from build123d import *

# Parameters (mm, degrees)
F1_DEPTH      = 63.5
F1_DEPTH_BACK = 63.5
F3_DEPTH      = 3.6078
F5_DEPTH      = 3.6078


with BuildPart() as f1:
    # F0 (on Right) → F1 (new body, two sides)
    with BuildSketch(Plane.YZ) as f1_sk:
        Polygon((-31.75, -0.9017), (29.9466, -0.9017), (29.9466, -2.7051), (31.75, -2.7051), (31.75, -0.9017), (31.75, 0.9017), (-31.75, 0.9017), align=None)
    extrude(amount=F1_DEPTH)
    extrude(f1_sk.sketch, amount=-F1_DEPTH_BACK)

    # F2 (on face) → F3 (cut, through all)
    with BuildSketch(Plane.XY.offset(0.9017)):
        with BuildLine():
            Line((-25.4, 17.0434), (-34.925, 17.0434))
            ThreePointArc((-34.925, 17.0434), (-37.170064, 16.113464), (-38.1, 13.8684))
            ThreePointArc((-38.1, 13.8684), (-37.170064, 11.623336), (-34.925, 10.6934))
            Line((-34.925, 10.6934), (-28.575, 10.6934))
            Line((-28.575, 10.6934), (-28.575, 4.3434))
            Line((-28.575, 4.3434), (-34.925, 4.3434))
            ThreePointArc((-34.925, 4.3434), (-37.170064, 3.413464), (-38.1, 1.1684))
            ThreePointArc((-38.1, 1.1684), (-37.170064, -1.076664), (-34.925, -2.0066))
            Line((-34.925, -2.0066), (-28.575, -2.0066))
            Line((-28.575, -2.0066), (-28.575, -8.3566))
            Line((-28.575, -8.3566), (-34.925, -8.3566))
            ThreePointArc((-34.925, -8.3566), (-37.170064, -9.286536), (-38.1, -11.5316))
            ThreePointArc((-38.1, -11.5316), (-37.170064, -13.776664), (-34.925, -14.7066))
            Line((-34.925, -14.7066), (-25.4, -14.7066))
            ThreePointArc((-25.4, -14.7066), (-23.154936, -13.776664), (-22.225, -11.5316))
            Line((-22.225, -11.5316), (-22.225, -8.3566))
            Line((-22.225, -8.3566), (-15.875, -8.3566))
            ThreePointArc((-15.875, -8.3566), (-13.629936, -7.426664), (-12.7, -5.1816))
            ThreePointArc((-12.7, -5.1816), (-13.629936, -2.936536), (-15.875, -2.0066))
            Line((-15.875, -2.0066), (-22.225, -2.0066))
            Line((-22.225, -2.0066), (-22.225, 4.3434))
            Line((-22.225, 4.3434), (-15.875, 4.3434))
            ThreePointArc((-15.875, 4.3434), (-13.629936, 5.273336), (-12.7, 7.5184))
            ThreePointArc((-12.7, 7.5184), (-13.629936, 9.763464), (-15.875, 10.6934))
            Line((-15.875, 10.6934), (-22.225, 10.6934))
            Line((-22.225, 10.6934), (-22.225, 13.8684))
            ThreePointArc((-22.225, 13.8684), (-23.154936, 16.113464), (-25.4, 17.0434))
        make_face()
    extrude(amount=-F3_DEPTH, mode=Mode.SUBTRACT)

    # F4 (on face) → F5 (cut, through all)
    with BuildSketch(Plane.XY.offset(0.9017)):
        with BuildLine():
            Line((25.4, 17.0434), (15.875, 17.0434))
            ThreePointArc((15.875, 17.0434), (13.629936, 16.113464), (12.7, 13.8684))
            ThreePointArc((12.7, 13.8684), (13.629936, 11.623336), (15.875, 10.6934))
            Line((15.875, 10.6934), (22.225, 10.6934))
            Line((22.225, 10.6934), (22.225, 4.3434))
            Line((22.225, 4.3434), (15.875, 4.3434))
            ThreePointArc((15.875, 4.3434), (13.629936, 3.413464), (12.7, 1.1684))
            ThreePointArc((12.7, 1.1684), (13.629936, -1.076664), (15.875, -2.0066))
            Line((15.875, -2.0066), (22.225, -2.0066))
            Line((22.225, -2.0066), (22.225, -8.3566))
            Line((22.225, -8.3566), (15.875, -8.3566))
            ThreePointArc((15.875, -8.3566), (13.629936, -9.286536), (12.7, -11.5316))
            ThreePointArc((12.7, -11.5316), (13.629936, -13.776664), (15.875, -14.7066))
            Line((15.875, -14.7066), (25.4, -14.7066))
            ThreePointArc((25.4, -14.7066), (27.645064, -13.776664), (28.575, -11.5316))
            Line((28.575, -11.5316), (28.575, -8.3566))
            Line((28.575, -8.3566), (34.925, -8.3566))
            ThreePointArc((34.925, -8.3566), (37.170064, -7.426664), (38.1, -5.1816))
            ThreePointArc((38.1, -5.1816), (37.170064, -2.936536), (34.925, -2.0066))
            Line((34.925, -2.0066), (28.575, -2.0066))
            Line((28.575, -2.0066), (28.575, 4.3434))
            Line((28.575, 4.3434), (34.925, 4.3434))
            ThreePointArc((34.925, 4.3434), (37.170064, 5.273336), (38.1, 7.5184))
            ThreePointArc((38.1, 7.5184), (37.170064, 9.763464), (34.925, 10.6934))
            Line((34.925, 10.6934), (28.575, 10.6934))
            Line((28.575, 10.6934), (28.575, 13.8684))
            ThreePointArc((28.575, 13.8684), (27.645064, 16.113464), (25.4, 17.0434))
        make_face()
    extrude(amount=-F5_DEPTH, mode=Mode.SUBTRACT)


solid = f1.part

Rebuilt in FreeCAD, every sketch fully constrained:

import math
import FreeCAD as App
import Part
import Sketcher
Q = App.Units.Quantity

doc = App.newDocument("Part")
body = doc.addObject("PartDesign::Body", "Body")

sketch1 = doc.addObject("Sketcher::SketchObject", "Sketch")
body.addObject(sketch1)
sketch1.AttachmentSupport = (doc.YZ_Plane, [""])
sketch1.MapMode = "FlatFace"
sketch1.addGeometry([
    Part.LineSegment(App.Vector(-31.8, -0.9, 0), App.Vector(29.9, -0.9, 0)),
    Part.LineSegment(App.Vector(29.9, -0.9, 0), App.Vector(29.9, -2.7, 0)),
    Part.LineSegment(App.Vector(29.9, -2.7, 0), App.Vector(31.8, -2.7, 0)),
    Part.LineSegment(App.Vector(31.8, -2.7, 0), App.Vector(31.8, 0.9, 0)),
    Part.LineSegment(App.Vector(31.8, 0.9, 0), App.Vector(-31.8, 0.9, 0)),
    Part.LineSegment(App.Vector(-31.8, 0.9, 0), App.Vector(-31.8, -0.9, 0)),
], False)
sketch1.addConstraint([
    Sketcher.Constraint("Coincident", 0, 2, 1, 1),
    Sketcher.Constraint("Coincident", 1, 2, 2, 1),
    Sketcher.Constraint("Coincident", 2, 2, 3, 1),
    Sketcher.Constraint("Coincident", 3, 2, 4, 1),
    Sketcher.Constraint("Coincident", 4, 2, 5, 1),
    Sketcher.Constraint("Coincident", 5, 2, 0, 1),
    Sketcher.Constraint("Horizontal", 0),
    Sketcher.Constraint("Vertical", 1),
    Sketcher.Constraint("Horizontal", 2),
    Sketcher.Constraint("Vertical", 3),
    Sketcher.Constraint("Horizontal", 4),
    Sketcher.Constraint("Vertical", 5),
    Sketcher.Constraint("Symmetric", 3, 2, 5, 2, -1, 1),
    Sketcher.Constraint("Equal", 2, 1),
    Sketcher.Constraint("Equal", 1, 5),
    Sketcher.Constraint("DistanceX", 4, 2, 4, 1, Q("2.5 in")),
    Sketcher.Constraint("DistanceX", 0, 1, 0, 2, Q("2.429 in")),
])
pad1 = doc.addObject("PartDesign::Pad", "Pad")
body.addObject(pad1)
pad1.Profile = sketch1
pad1.Type = "TwoLengths"
pad1.Length = Q("2.5 in")
pad1.Length2 = Q("2.5 in")

sketch2 = doc.addObject("Sketcher::SketchObject", "Sketch001")
body.addObject(sketch2)
sketch2.AttachmentSupport = (doc.XY_Plane, [""])
sketch2.MapMode = "FlatFace"
sketch2.AttachmentOffset = App.Placement(App.Vector(0, 0, 0.0355 * 25.4), App.Rotation())
sketch2.addGeometry([
    Part.LineSegment(App.Vector(-25.4, 17, 0), App.Vector(-34.9, 17, 0)),
    Part.ArcOfCircle(Part.Circle(App.Vector(-34.9, 13.9, 0), App.Vector(0, 0, 1), 3.2), math.radians(90), math.radians(180)),
    Part.ArcOfCircle(Part.Circle(App.Vector(-34.9, 13.9, 0), App.Vector(0, 0, 1), 3.2), math.radians(-180), math.radians(-90)),
    Part.LineSegment(App.Vector(-34.9, 10.7, 0), App.Vector(-28.6, 10.7, 0)),
    Part.LineSegment(App.Vector(-28.6, 10.7, 0), App.Vector(-28.6, 4.3, 0)),
    Part.LineSegment(App.Vector(-28.6, 4.3, 0), App.Vector(-34.9, 4.3, 0)),
    Part.ArcOfCircle(Part.Circle(App.Vector(-34.9, 1.2, 0), App.Vector(0, 0, 1), 3.2), math.radians(90), math.radians(180)),
    Part.ArcOfCircle(Part.Circle(App.Vector(-34.9, 1.2, 0), App.Vector(0, 0, 1), 3.2), math.radians(-180), math.radians(-90)),
    Part.LineSegment(App.Vector(-34.9, -2, 0), App.Vector(-28.6, -2, 0)),
    Part.LineSegment(App.Vector(-28.6, -2, 0), App.Vector(-28.6, -8.4, 0)),
    Part.LineSegment(App.Vector(-28.6, -8.4, 0), App.Vector(-34.9, -8.4, 0)),
    Part.ArcOfCircle(Part.Circle(App.Vector(-34.9, -11.5, 0), App.Vector(0, 0, 1), 3.2), math.radians(90), math.radians(180)),
    Part.ArcOfCircle(Part.Circle(App.Vector(-34.9, -11.5, 0), App.Vector(0, 0, 1), 3.2), math.radians(-180), math.radians(-90)),
    Part.LineSegment(App.Vector(-34.9, -14.7, 0), App.Vector(-25.4, -14.7, 0)),
    Part.ArcOfCircle(Part.Circle(App.Vector(-25.4, -11.5, 0), App.Vector(0, 0, 1), 3.2), math.radians(-90), math.radians(0)),
    Part.LineSegment(App.Vector(-22.2, -11.5, 0), App.Vector(-22.2, -8.4, 0)),
    Part.LineSegment(App.Vector(-22.2, -8.4, 0), App.Vector(-15.9, -8.4, 0)),
    Part.ArcOfCircle(Part.Circle(App.Vector(-15.9, -5.2, 0), App.Vector(0, 0, 1), 3.2), math.radians(-90), math.radians(0)),
    Part.ArcOfCircle(Part.Circle(App.Vector(-15.9, -5.2, 0), App.Vector(0, 0, 1), 3.2), math.radians(0), math.radians(90)),
    Part.LineSegment(App.Vector(-15.9, -2, 0), App.Vector(-22.2, -2, 0)),
    Part.LineSegment(App.Vector(-22.2, -2, 0), App.Vector(-22.2, 4.3, 0)),
    Part.LineSegment(App.Vector(-22.2, 4.3, 0), App.Vector(-15.9, 4.3, 0)),
    Part.ArcOfCircle(Part.Circle(App.Vector(-15.9, 7.5, 0), App.Vector(0, 0, 1), 3.2), math.radians(-90), math.radians(0)),
    Part.ArcOfCircle(Part.Circle(App.Vector(-15.9, 7.5, 0), App.Vector(0, 0, 1), 3.2), math.radians(0), math.radians(90)),
    Part.LineSegment(App.Vector(-15.9, 10.7, 0), App.Vector(-22.2, 10.7, 0)),
    Part.LineSegment(App.Vector(-22.2, 10.7, 0), App.Vector(-22.2, 13.9, 0)),
    Part.ArcOfCircle(Part.Circle(App.Vector(-25.4, 13.9, 0), App.Vector(0, 0, 1), 3.2), math.radians(0), math.radians(90)),
], False)
sketch2.addConstraint([
    Sketcher.Constraint("Tangent", 0, 2, 1, 1),
    Sketcher.Constraint("Tangent", 1, 2, 2, 1),
    Sketcher.Constraint("Tangent", 2, 2, 3, 1),
    Sketcher.Constraint("Coincident", 3, 2, 4, 1),
    Sketcher.Constraint("Coincident", 4, 2, 5, 1),
    Sketcher.Constraint("Tangent", 5, 2, 6, 1),
    Sketcher.Constraint("Tangent", 6, 2, 7, 1),
    Sketcher.Constraint("Tangent", 7, 2, 8, 1),
    Sketcher.Constraint("Coincident", 8, 2, 9, 1),
    Sketcher.Constraint("Coincident", 9, 2, 10, 1),
    Sketcher.Constraint("Tangent", 10, 2, 11, 1),
    Sketcher.Constraint("Tangent", 11, 2, 12, 1),
    Sketcher.Constraint("Tangent", 12, 2, 13, 1),
    Sketcher.Constraint("Tangent", 13, 2, 14, 1),
    Sketcher.Constraint("Tangent", 14, 2, 15, 1),
    Sketcher.Constraint("Coincident", 15, 2, 16, 1),
    Sketcher.Constraint("Tangent", 16, 2, 17, 1),
    Sketcher.Constraint("Tangent", 17, 2, 18, 1),
    Sketcher.Constraint("Tangent", 18, 2, 19, 1),
    Sketcher.Constraint("Coincident", 19, 2, 20, 1),
    Sketcher.Constraint("Coincident", 20, 2, 21, 1),
    Sketcher.Constraint("Tangent", 21, 2, 22, 1),
    Sketcher.Constraint("Tangent", 22, 2, 23, 1),
    Sketcher.Constraint("Tangent", 23, 2, 24, 1),
    Sketcher.Constraint("Coincident", 24, 2, 25, 1),
    Sketcher.Constraint("Tangent", 25, 2, 26, 1),
    Sketcher.Constraint("Tangent", 26, 2, 0, 1),
    Sketcher.Constraint("Horizontal", 0),
    Sketcher.Constraint("Horizontal", 3),
    Sketcher.Constraint("Vertical", 4),
    Sketcher.Constraint("Horizontal", 5),
    Sketcher.Constraint("Horizontal", 8),
    Sketcher.Constraint("Vertical", 9),
    Sketcher.Constraint("Horizontal", 10),
    Sketcher.Constraint("Horizontal", 13),
    Sketcher.Constraint("Vertical", 15),
    Sketcher.Constraint("Horizontal", 16),
    Sketcher.Constraint("Horizontal", 19),
    Sketcher.Constraint("Vertical", 20),
    Sketcher.Constraint("Horizontal", 21),
    Sketcher.Constraint("Horizontal", 24),
    Sketcher.Constraint("Vertical", 25),
    Sketcher.Constraint("Equal", 1, 2),
    Sketcher.Constraint("Equal", 2, 6),
    Sketcher.Constraint("Equal", 6, 7),
    Sketcher.Constraint("Equal", 7, 11),
    Sketcher.Constraint("Equal", 11, 12),
    Sketcher.Constraint("Equal", 12, 14),
    Sketcher.Constraint("Equal", 14, 17),
    Sketcher.Constraint("Equal", 17, 18),
    Sketcher.Constraint("Equal", 18, 22),
    Sketcher.Constraint("Equal", 22, 23),
    Sketcher.Constraint("Equal", 23, 26),
    Sketcher.Constraint("Horizontal", 26, 3, 1, 2),
    Sketcher.Constraint("Horizontal", 7, 3, 6, 2),
    Sketcher.Constraint("Horizontal", 14, 3, 11, 2),
    Sketcher.Constraint("Horizontal", 10, 2, 15, 2),
    Sketcher.Constraint("Horizontal", 18, 3, 17, 2),
    Sketcher.Constraint("Horizontal", 8, 2, 18, 2),
    Sketcher.Constraint("Horizontal", 5, 2, 20, 2),
    Sketcher.Constraint("Horizontal", 23, 3, 22, 2),
    Sketcher.Constraint("Horizontal", 3, 2, 23, 2),
    Sketcher.Constraint("Vertical", 2, 3, 6, 3),
    Sketcher.Constraint("Vertical", 7, 3, 11, 3),
    Sketcher.Constraint("Vertical", 18, 3, 22, 3),
    Sketcher.Constraint("Vertical", 14, 3, 26, 3),
    Sketcher.Constraint("Vertical", 4, 2, 8, 2),
    Sketcher.Constraint("Vertical", 15, 2, 19, 2),
    Sketcher.Constraint("Equal", 10, 16),
    Sketcher.Constraint("Equal", 24, 4),
    Sketcher.Constraint("DistanceX", 14, 3, -1, 1, Q("1 in")),
    Sketcher.Constraint("Radius", 1, Q("0.125 in")),
    Sketcher.Constraint("DistanceX", 1, 2, -1, 1, Q("1.5 in")),
    Sketcher.Constraint("DistanceY", -1, 1, 1, 3, Q("0.546 in")),
])
pocket1 = doc.addObject("PartDesign::Pocket", "Pocket")
body.addObject(pocket1)
pocket1.Profile = sketch2
pocket1.Type = "ThroughAll"

sketch3 = doc.addObject("Sketcher::SketchObject", "Sketch002")
body.addObject(sketch3)
sketch3.AttachmentSupport = (doc.XY_Plane, [""])
sketch3.MapMode = "FlatFace"
sketch3.AttachmentOffset = App.Placement(App.Vector(0, 0, 0.0355 * 25.4), App.Rotation())
sketch3.addGeometry([
    Part.LineSegment(App.Vector(25.4, 17, 0), App.Vector(15.9, 17, 0)),
    Part.ArcOfCircle(Part.Circle(App.Vector(15.9, 13.9, 0), App.Vector(0, 0, 1), 3.2), math.radians(90), math.radians(180)),
    Part.ArcOfCircle(Part.Circle(App.Vector(15.9, 13.9, 0), App.Vector(0, 0, 1), 3.2), math.radians(-180), math.radians(-90)),
    Part.LineSegment(App.Vector(15.9, 10.7, 0), App.Vector(22.2, 10.7, 0)),
    Part.LineSegment(App.Vector(22.2, 10.7, 0), App.Vector(22.2, 4.3, 0)),
    Part.LineSegment(App.Vector(22.2, 4.3, 0), App.Vector(15.9, 4.3, 0)),
    Part.ArcOfCircle(Part.Circle(App.Vector(15.9, 1.2, 0), App.Vector(0, 0, 1), 3.2), math.radians(90), math.radians(180)),
    Part.ArcOfCircle(Part.Circle(App.Vector(15.9, 1.2, 0), App.Vector(0, 0, 1), 3.2), math.radians(-180), math.radians(-90)),
    Part.LineSegment(App.Vector(15.9, -2, 0), App.Vector(22.2, -2, 0)),
    Part.LineSegment(App.Vector(22.2, -2, 0), App.Vector(22.2, -8.4, 0)),
    Part.LineSegment(App.Vector(22.2, -8.4, 0), App.Vector(15.9, -8.4, 0)),
    Part.ArcOfCircle(Part.Circle(App.Vector(15.9, -11.5, 0), App.Vector(0, 0, 1), 3.2), math.radians(90), math.radians(180)),
    Part.ArcOfCircle(Part.Circle(App.Vector(15.9, -11.5, 0), App.Vector(0, 0, 1), 3.2), math.radians(-180), math.radians(-90)),
    Part.LineSegment(App.Vector(15.9, -14.7, 0), App.Vector(25.4, -14.7, 0)),
    Part.ArcOfCircle(Part.Circle(App.Vector(25.4, -11.5, 0), App.Vector(0, 0, 1), 3.2), math.radians(-90), math.radians(0)),
    Part.LineSegment(App.Vector(28.6, -11.5, 0), App.Vector(28.6, -8.4, 0)),
    Part.LineSegment(App.Vector(28.6, -8.4, 0), App.Vector(34.9, -8.4, 0)),
    Part.ArcOfCircle(Part.Circle(App.Vector(34.9, -5.2, 0), App.Vector(0, 0, 1), 3.2), math.radians(-90), math.radians(0)),
    Part.ArcOfCircle(Part.Circle(App.Vector(34.9, -5.2, 0), App.Vector(0, 0, 1), 3.2), math.radians(0), math.radians(90)),
    Part.LineSegment(App.Vector(34.9, -2, 0), App.Vector(28.6, -2, 0)),
    Part.LineSegment(App.Vector(28.6, -2, 0), App.Vector(28.6, 4.3, 0)),
    Part.LineSegment(App.Vector(28.6, 4.3, 0), App.Vector(34.9, 4.3, 0)),
    Part.ArcOfCircle(Part.Circle(App.Vector(34.9, 7.5, 0), App.Vector(0, 0, 1), 3.2), math.radians(-90), math.radians(0)),
    Part.ArcOfCircle(Part.Circle(App.Vector(34.9, 7.5, 0), App.Vector(0, 0, 1), 3.2), math.radians(0), math.radians(90)),
    Part.LineSegment(App.Vector(34.9, 10.7, 0), App.Vector(28.6, 10.7, 0)),
    Part.LineSegment(App.Vector(28.6, 10.7, 0), App.Vector(28.6, 13.9, 0)),
    Part.ArcOfCircle(Part.Circle(App.Vector(25.4, 13.9, 0), App.Vector(0, 0, 1), 3.2), math.radians(0), math.radians(90)),
], False)
sketch3.addConstraint([
    Sketcher.Constraint("Tangent", 0, 2, 1, 1),
    Sketcher.Constraint("Tangent", 1, 2, 2, 1),
    Sketcher.Constraint("Tangent", 2, 2, 3, 1),
    Sketcher.Constraint("Coincident", 3, 2, 4, 1),
    Sketcher.Constraint("Coincident", 4, 2, 5, 1),
    Sketcher.Constraint("Tangent", 5, 2, 6, 1),
    Sketcher.Constraint("Tangent", 6, 2, 7, 1),
    Sketcher.Constraint("Tangent", 7, 2, 8, 1),
    Sketcher.Constraint("Coincident", 8, 2, 9, 1),
    Sketcher.Constraint("Coincident", 9, 2, 10, 1),
    Sketcher.Constraint("Tangent", 10, 2, 11, 1),
    Sketcher.Constraint("Tangent", 11, 2, 12, 1),
    Sketcher.Constraint("Tangent", 12, 2, 13, 1),
    Sketcher.Constraint("Tangent", 13, 2, 14, 1),
    Sketcher.Constraint("Tangent", 14, 2, 15, 1),
    Sketcher.Constraint("Coincident", 15, 2, 16, 1),
    Sketcher.Constraint("Tangent", 16, 2, 17, 1),
    Sketcher.Constraint("Tangent", 17, 2, 18, 1),
    Sketcher.Constraint("Tangent", 18, 2, 19, 1),
    Sketcher.Constraint("Coincident", 19, 2, 20, 1),
    Sketcher.Constraint("Coincident", 20, 2, 21, 1),
    Sketcher.Constraint("Tangent", 21, 2, 22, 1),
    Sketcher.Constraint("Tangent", 22, 2, 23, 1),
    Sketcher.Constraint("Tangent", 23, 2, 24, 1),
    Sketcher.Constraint("Coincident", 24, 2, 25, 1),
    Sketcher.Constraint("Tangent", 25, 2, 26, 1),
    Sketcher.Constraint("Tangent", 26, 2, 0, 1),
    Sketcher.Constraint("Horizontal", 0),
    Sketcher.Constraint("Horizontal", 3),
    Sketcher.Constraint("Vertical", 4),
    Sketcher.Constraint("Horizontal", 5),
    Sketcher.Constraint("Horizontal", 8),
    Sketcher.Constraint("Vertical", 9),
    Sketcher.Constraint("Horizontal", 10),
    Sketcher.Constraint("Horizontal", 13),
    Sketcher.Constraint("Vertical", 15),
    Sketcher.Constraint("Horizontal", 16),
    Sketcher.Constraint("Horizontal", 19),
    Sketcher.Constraint("Vertical", 20),
    Sketcher.Constraint("Horizontal", 21),
    Sketcher.Constraint("Horizontal", 24),
    Sketcher.Constraint("Vertical", 25),
    Sketcher.Constraint("Equal", 1, 2),
    Sketcher.Constraint("Equal", 2, 6),
    Sketcher.Constraint("Equal", 6, 7),
    Sketcher.Constraint("Equal", 7, 11),
    Sketcher.Constraint("Equal", 11, 12),
    Sketcher.Constraint("Equal", 12, 14),
    Sketcher.Constraint("Equal", 14, 17),
    Sketcher.Constraint("Equal", 17, 18),
    Sketcher.Constraint("Equal", 18, 22),
    Sketcher.Constraint("Equal", 22, 23),
    Sketcher.Constraint("Equal", 23, 26),
    Sketcher.Constraint("Horizontal", 26, 3, 1, 2),
    Sketcher.Constraint("Horizontal", 7, 3, 6, 2),
    Sketcher.Constraint("Horizontal", 14, 3, 11, 2),
    Sketcher.Constraint("Horizontal", 10, 2, 15, 2),
    Sketcher.Constraint("Horizontal", 18, 3, 17, 2),
    Sketcher.Constraint("Horizontal", 8, 2, 18, 2),
    Sketcher.Constraint("Horizontal", 5, 2, 20, 2),
    Sketcher.Constraint("Horizontal", 23, 3, 22, 2),
    Sketcher.Constraint("Horizontal", 3, 2, 23, 2),
    Sketcher.Constraint("Vertical", 2, 3, 6, 3),
    Sketcher.Constraint("Vertical", 7, 3, 11, 3),
    Sketcher.Constraint("Vertical", 18, 3, 22, 3),
    Sketcher.Constraint("Vertical", 14, 3, 26, 3),
    Sketcher.Constraint("Vertical", 4, 2, 8, 2),
    Sketcher.Constraint("Vertical", 15, 2, 19, 2),
    Sketcher.Constraint("Equal", 10, 16),
    Sketcher.Constraint("Equal", 24, 4),
    Sketcher.Constraint("DistanceX", -1, 1, 14, 3, Q("1 in")),
    Sketcher.Constraint("Radius", 1, Q("0.125 in")),
    Sketcher.Constraint("DistanceX", -1, 1, 1, 2, Q("0.5 in")),
    Sketcher.Constraint("DistanceY", -1, 1, 1, 3, Q("0.546 in")),
])
pocket2 = doc.addObject("PartDesign::Pocket", "Pocket001")
body.addObject(pocket2)
pocket2.Profile = sketch3
pocket2.Type = "ThroughAll"

doc.recompute()
